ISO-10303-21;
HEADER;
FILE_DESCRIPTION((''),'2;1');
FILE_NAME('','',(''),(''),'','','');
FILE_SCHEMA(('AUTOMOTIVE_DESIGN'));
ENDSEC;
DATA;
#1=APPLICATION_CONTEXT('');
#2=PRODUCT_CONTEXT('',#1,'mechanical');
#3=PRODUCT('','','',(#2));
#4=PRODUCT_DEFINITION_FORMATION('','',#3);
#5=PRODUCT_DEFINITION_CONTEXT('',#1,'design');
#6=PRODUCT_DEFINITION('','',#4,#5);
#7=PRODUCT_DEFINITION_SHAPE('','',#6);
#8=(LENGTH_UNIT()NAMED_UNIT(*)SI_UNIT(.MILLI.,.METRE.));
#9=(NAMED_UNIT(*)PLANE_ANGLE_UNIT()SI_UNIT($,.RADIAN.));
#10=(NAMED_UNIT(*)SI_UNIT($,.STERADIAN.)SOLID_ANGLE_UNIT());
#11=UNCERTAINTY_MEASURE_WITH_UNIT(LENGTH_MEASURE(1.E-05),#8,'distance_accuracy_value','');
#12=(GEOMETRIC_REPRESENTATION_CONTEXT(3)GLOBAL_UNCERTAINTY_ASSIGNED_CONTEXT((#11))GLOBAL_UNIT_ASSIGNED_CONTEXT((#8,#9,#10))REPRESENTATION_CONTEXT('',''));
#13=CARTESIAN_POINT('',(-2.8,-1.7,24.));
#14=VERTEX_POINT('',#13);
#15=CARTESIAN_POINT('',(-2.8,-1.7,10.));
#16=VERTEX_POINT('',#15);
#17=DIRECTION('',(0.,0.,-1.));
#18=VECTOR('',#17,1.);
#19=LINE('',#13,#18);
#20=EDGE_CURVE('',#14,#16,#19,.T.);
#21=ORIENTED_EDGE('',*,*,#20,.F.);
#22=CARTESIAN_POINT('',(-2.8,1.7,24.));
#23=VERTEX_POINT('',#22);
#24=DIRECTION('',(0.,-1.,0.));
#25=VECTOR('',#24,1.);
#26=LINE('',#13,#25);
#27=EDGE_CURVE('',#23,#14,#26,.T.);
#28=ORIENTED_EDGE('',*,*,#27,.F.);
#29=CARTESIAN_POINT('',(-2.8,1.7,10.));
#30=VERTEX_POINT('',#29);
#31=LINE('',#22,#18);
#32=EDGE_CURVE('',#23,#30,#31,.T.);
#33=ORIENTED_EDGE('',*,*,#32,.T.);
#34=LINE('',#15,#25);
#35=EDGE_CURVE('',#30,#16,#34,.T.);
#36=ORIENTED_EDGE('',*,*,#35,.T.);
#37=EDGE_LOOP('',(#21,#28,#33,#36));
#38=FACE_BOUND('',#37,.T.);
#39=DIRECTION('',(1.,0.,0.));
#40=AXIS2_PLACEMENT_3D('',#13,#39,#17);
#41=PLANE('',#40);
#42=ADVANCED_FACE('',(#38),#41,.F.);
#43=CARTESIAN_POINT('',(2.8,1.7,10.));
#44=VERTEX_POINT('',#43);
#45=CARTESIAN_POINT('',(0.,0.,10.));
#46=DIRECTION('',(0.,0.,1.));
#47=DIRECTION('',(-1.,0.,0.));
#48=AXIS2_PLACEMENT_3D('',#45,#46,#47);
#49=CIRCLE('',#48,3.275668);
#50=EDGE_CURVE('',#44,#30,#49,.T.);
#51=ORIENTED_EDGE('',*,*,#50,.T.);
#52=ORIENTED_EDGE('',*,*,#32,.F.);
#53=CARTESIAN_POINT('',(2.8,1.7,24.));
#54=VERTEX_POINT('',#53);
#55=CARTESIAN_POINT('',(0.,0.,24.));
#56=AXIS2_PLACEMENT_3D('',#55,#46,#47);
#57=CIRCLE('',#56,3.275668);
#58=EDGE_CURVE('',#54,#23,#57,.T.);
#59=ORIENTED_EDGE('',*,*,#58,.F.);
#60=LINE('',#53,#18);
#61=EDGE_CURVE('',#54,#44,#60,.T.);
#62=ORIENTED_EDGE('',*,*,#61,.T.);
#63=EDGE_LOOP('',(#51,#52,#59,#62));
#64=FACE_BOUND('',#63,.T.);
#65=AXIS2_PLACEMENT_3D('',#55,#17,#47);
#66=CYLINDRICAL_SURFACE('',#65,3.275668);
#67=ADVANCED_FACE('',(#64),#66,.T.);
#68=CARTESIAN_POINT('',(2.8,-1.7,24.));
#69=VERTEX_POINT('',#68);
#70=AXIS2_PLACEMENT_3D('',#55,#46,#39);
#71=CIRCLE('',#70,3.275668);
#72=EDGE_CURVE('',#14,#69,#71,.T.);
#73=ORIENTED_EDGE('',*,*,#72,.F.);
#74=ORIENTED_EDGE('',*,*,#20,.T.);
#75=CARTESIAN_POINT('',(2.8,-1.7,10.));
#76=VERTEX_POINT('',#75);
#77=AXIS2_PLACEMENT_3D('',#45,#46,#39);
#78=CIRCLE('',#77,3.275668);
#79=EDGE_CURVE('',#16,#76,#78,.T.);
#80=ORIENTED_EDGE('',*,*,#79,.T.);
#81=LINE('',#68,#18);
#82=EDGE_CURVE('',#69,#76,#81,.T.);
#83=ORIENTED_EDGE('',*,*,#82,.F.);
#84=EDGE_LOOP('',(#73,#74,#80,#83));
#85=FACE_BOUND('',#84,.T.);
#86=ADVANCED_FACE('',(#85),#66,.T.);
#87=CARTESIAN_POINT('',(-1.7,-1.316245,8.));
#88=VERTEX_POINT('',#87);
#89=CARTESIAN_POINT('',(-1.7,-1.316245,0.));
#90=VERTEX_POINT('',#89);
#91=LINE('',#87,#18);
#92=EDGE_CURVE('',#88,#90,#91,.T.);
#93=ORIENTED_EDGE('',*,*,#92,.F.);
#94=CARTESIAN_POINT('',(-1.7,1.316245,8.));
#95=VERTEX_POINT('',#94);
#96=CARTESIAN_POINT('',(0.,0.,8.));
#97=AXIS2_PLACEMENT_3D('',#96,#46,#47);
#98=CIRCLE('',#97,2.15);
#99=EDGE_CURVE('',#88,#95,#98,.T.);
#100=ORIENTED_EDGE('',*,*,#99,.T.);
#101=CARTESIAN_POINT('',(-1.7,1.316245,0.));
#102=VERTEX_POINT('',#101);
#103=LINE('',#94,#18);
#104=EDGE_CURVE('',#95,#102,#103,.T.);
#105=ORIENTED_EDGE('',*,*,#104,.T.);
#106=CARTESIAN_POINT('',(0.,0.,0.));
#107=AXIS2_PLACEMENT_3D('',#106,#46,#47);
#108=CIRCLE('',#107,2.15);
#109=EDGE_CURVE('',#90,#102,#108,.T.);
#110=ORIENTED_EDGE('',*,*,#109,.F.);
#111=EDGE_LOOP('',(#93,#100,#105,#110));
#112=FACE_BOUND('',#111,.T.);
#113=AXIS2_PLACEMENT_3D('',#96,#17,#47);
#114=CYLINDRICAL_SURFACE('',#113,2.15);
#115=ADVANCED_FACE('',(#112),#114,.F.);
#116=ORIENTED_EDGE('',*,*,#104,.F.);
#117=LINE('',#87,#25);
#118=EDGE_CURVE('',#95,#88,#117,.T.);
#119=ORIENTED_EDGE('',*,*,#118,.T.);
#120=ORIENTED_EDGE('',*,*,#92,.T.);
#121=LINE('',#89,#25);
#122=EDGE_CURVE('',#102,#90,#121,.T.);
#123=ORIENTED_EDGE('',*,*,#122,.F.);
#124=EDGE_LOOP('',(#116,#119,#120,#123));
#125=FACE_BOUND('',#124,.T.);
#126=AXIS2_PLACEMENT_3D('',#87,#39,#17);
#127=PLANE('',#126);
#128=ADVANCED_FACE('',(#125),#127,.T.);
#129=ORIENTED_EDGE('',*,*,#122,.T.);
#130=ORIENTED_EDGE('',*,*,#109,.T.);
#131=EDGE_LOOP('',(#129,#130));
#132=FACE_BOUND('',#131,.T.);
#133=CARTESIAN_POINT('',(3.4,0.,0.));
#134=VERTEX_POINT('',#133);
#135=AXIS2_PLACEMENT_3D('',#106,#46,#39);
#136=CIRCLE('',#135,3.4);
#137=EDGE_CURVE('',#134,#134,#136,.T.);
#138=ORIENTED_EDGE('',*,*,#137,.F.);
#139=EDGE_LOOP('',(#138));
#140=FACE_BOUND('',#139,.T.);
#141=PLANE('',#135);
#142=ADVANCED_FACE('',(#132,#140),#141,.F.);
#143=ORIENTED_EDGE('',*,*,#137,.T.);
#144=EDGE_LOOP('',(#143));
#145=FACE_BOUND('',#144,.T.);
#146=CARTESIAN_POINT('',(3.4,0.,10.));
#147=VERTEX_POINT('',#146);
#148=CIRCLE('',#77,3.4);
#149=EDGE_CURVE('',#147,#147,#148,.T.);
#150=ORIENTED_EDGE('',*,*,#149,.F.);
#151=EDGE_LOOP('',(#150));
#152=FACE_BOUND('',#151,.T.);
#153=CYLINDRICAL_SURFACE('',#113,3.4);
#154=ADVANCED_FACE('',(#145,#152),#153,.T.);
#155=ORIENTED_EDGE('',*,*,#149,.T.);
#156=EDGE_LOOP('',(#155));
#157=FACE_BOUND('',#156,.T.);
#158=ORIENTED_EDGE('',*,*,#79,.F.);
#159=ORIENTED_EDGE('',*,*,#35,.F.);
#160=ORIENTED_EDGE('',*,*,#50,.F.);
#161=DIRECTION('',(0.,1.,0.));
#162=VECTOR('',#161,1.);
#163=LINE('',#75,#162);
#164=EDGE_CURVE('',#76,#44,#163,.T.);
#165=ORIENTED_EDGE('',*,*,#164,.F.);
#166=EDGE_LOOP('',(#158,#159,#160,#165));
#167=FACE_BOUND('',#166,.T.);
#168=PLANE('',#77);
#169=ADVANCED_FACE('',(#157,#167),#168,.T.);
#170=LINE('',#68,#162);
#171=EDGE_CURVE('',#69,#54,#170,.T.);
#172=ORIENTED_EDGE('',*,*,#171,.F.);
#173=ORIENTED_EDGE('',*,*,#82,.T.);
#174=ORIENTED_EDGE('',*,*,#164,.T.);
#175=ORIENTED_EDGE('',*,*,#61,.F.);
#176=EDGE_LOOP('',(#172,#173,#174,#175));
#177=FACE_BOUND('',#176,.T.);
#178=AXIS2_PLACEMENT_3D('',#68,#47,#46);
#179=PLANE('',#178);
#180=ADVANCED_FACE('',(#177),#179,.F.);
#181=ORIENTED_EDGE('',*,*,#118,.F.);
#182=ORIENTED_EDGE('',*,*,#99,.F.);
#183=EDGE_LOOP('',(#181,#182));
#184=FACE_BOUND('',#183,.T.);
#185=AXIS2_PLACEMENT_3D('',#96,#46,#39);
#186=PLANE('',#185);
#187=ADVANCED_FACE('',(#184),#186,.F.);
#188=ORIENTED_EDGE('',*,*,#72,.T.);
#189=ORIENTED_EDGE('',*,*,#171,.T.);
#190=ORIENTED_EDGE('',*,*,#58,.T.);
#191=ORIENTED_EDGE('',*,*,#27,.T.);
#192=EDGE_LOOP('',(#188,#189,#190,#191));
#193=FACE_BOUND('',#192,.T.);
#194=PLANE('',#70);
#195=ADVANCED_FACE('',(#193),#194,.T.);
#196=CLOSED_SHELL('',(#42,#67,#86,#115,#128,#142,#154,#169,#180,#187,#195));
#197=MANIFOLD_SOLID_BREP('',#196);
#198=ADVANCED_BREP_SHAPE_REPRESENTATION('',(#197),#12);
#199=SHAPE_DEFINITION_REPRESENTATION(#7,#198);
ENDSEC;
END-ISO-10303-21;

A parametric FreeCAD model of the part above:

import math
import FreeCAD as App
import Part
import Sketcher

doc = App.newDocument("Part")
body = doc.addObject("PartDesign::Body", "Body")

# Sketch on XY plane
sketch1 = body.newObject("Sketcher::SketchObject", "Sketch")
sketch1.AttachmentSupport = (doc.getObject("XY_Plane"), [""])
sketch1.MapMode = "FlatFace"
sketch1.addGeometry(Part.Circle(App.Vector(0, 0, 0), App.Vector(0, 0, 1), 3.4), False)
sketch1.addGeometry(Part.ArcOfCircle(Part.Circle(App.Vector(0, 0, 0), App.Vector(0, 0, 1), 2.1), math.radians(-142), math.radians(142)), False)
sketch1.addGeometry(Part.LineSegment(App.Vector(-1.7, -1.3, 0), App.Vector(-1.7, 1.3, 0)), False)
sketch1.addConstraint(Sketcher.Constraint("Coincident", 1, 1, 2, 1))
sketch1.addConstraint(Sketcher.Constraint("Coincident", 2, 2, 1, 2))
sketch1.addConstraint(Sketcher.Constraint("Vertical", 2))
sketch1.addConstraint(Sketcher.Constraint("Coincident", 0, 3, -1, 1))
sketch1.addConstraint(Sketcher.Constraint("Coincident", 1, 3, -1, 1))
sketch1.addConstraint(Sketcher.Constraint("Diameter", 0, 6.8))
sketch1.addConstraint(Sketcher.Constraint("Radius", 1, 2.15))
sketch1.addConstraint(Sketcher.Constraint("DistanceX", 1, 1, -1, 1, 1.7))
pad1 = body.newObject("PartDesign::Pad", "Pad")
pad1.Profile = sketch1
pad1.Length = 8

# Sketch on XY plane
sketch2 = body.newObject("Sketcher::SketchObject", "Sketch001")
sketch2.AttachmentSupport = (doc.getObject("XY_Plane"), [""])
sketch2.MapMode = "FlatFace"
sketch2.AttachmentOffset = App.Placement(App.Vector(0, 0, 8), App.Rotation())
sketch2.addGeometry(Part.Circle(App.Vector(0, 0, 0), App.Vector(0, 0, 1), 3.4), False)
sketch2.addConstraint(Sketcher.Constraint("Coincident", 0, 3, -1, 1))
sketch2.addConstraint(Sketcher.Constraint("Diameter", 0, 6.8))
pad2 = body.newObject("PartDesign::Pad", "Pad001")
pad2.Profile = sketch2
pad2.Length = 2

# Sketch on XY plane
sketch3 = body.newObject("Sketcher::SketchObject", "Sketch002")
sketch3.AttachmentSupport = (doc.getObject("XY_Plane"), [""])
sketch3.MapMode = "FlatFace"
sketch3.AttachmentOffset = App.Placement(App.Vector(0, 0, 10), App.Rotation())
sketch3.addGeometry(Part.LineSegment(App.Vector(-2.8, 1.7, 0), App.Vector(-2.8, -1.7, 0)), False)
sketch3.addGeometry(Part.ArcOfCircle(Part.Circle(App.Vector(0, 0, 0), App.Vector(0, 0, 1), 3.3), math.radians(-149), math.radians(-31)), False)
sketch3.addGeometry(Part.LineSegment(App.Vector(2.8, -1.7, 0), App.Vector(2.8, 1.7, 0)), False)
sketch3.addGeometry(Part.ArcOfCircle(Part.Circle(App.Vector(0, 0, 0), App.Vector(0, 0, 1), 3.3), math.radians(31), math.radians(149)), False)
sketch3.addConstraint(Sketcher.Constraint("Coincident", 0, 2, 1, 1))
sketch3.addConstraint(Sketcher.Constraint("Coincident", 1, 2, 2, 1))
sketch3.addConstraint(Sketcher.Constraint("Coincident", 2, 2, 3, 1))
sketch3.addConstraint(Sketcher.Constraint("Coincident", 3, 2, 0, 1))
sketch3.addConstraint(Sketcher.Constraint("Vertical", 0))
sketch3.addConstraint(Sketcher.Constraint("Vertical", 2))
sketch3.addConstraint(Sketcher.Constraint("Coincident", 1, 3, -1, 1))
sketch3.addConstraint(Sketcher.Constraint("Coincident", 3, 3, -1, 1))
sketch3.addConstraint(Sketcher.Constraint("Equal", 1, 3))
sketch3.addConstraint(Sketcher.Constraint("Horizontal", 0, 2, 1, 2))
sketch3.addConstraint(Sketcher.Constraint("DistanceY", 0, 2, 0, 1, 3.4))
sketch3.addConstraint(Sketcher.Constraint("DistanceX", 0, 2, -1, 1, 2.8))
pad3 = body.newObject("PartDesign::Pad", "Pad002")
pad3.Profile = sketch3
pad3.Length = 14

doc.recompute()
